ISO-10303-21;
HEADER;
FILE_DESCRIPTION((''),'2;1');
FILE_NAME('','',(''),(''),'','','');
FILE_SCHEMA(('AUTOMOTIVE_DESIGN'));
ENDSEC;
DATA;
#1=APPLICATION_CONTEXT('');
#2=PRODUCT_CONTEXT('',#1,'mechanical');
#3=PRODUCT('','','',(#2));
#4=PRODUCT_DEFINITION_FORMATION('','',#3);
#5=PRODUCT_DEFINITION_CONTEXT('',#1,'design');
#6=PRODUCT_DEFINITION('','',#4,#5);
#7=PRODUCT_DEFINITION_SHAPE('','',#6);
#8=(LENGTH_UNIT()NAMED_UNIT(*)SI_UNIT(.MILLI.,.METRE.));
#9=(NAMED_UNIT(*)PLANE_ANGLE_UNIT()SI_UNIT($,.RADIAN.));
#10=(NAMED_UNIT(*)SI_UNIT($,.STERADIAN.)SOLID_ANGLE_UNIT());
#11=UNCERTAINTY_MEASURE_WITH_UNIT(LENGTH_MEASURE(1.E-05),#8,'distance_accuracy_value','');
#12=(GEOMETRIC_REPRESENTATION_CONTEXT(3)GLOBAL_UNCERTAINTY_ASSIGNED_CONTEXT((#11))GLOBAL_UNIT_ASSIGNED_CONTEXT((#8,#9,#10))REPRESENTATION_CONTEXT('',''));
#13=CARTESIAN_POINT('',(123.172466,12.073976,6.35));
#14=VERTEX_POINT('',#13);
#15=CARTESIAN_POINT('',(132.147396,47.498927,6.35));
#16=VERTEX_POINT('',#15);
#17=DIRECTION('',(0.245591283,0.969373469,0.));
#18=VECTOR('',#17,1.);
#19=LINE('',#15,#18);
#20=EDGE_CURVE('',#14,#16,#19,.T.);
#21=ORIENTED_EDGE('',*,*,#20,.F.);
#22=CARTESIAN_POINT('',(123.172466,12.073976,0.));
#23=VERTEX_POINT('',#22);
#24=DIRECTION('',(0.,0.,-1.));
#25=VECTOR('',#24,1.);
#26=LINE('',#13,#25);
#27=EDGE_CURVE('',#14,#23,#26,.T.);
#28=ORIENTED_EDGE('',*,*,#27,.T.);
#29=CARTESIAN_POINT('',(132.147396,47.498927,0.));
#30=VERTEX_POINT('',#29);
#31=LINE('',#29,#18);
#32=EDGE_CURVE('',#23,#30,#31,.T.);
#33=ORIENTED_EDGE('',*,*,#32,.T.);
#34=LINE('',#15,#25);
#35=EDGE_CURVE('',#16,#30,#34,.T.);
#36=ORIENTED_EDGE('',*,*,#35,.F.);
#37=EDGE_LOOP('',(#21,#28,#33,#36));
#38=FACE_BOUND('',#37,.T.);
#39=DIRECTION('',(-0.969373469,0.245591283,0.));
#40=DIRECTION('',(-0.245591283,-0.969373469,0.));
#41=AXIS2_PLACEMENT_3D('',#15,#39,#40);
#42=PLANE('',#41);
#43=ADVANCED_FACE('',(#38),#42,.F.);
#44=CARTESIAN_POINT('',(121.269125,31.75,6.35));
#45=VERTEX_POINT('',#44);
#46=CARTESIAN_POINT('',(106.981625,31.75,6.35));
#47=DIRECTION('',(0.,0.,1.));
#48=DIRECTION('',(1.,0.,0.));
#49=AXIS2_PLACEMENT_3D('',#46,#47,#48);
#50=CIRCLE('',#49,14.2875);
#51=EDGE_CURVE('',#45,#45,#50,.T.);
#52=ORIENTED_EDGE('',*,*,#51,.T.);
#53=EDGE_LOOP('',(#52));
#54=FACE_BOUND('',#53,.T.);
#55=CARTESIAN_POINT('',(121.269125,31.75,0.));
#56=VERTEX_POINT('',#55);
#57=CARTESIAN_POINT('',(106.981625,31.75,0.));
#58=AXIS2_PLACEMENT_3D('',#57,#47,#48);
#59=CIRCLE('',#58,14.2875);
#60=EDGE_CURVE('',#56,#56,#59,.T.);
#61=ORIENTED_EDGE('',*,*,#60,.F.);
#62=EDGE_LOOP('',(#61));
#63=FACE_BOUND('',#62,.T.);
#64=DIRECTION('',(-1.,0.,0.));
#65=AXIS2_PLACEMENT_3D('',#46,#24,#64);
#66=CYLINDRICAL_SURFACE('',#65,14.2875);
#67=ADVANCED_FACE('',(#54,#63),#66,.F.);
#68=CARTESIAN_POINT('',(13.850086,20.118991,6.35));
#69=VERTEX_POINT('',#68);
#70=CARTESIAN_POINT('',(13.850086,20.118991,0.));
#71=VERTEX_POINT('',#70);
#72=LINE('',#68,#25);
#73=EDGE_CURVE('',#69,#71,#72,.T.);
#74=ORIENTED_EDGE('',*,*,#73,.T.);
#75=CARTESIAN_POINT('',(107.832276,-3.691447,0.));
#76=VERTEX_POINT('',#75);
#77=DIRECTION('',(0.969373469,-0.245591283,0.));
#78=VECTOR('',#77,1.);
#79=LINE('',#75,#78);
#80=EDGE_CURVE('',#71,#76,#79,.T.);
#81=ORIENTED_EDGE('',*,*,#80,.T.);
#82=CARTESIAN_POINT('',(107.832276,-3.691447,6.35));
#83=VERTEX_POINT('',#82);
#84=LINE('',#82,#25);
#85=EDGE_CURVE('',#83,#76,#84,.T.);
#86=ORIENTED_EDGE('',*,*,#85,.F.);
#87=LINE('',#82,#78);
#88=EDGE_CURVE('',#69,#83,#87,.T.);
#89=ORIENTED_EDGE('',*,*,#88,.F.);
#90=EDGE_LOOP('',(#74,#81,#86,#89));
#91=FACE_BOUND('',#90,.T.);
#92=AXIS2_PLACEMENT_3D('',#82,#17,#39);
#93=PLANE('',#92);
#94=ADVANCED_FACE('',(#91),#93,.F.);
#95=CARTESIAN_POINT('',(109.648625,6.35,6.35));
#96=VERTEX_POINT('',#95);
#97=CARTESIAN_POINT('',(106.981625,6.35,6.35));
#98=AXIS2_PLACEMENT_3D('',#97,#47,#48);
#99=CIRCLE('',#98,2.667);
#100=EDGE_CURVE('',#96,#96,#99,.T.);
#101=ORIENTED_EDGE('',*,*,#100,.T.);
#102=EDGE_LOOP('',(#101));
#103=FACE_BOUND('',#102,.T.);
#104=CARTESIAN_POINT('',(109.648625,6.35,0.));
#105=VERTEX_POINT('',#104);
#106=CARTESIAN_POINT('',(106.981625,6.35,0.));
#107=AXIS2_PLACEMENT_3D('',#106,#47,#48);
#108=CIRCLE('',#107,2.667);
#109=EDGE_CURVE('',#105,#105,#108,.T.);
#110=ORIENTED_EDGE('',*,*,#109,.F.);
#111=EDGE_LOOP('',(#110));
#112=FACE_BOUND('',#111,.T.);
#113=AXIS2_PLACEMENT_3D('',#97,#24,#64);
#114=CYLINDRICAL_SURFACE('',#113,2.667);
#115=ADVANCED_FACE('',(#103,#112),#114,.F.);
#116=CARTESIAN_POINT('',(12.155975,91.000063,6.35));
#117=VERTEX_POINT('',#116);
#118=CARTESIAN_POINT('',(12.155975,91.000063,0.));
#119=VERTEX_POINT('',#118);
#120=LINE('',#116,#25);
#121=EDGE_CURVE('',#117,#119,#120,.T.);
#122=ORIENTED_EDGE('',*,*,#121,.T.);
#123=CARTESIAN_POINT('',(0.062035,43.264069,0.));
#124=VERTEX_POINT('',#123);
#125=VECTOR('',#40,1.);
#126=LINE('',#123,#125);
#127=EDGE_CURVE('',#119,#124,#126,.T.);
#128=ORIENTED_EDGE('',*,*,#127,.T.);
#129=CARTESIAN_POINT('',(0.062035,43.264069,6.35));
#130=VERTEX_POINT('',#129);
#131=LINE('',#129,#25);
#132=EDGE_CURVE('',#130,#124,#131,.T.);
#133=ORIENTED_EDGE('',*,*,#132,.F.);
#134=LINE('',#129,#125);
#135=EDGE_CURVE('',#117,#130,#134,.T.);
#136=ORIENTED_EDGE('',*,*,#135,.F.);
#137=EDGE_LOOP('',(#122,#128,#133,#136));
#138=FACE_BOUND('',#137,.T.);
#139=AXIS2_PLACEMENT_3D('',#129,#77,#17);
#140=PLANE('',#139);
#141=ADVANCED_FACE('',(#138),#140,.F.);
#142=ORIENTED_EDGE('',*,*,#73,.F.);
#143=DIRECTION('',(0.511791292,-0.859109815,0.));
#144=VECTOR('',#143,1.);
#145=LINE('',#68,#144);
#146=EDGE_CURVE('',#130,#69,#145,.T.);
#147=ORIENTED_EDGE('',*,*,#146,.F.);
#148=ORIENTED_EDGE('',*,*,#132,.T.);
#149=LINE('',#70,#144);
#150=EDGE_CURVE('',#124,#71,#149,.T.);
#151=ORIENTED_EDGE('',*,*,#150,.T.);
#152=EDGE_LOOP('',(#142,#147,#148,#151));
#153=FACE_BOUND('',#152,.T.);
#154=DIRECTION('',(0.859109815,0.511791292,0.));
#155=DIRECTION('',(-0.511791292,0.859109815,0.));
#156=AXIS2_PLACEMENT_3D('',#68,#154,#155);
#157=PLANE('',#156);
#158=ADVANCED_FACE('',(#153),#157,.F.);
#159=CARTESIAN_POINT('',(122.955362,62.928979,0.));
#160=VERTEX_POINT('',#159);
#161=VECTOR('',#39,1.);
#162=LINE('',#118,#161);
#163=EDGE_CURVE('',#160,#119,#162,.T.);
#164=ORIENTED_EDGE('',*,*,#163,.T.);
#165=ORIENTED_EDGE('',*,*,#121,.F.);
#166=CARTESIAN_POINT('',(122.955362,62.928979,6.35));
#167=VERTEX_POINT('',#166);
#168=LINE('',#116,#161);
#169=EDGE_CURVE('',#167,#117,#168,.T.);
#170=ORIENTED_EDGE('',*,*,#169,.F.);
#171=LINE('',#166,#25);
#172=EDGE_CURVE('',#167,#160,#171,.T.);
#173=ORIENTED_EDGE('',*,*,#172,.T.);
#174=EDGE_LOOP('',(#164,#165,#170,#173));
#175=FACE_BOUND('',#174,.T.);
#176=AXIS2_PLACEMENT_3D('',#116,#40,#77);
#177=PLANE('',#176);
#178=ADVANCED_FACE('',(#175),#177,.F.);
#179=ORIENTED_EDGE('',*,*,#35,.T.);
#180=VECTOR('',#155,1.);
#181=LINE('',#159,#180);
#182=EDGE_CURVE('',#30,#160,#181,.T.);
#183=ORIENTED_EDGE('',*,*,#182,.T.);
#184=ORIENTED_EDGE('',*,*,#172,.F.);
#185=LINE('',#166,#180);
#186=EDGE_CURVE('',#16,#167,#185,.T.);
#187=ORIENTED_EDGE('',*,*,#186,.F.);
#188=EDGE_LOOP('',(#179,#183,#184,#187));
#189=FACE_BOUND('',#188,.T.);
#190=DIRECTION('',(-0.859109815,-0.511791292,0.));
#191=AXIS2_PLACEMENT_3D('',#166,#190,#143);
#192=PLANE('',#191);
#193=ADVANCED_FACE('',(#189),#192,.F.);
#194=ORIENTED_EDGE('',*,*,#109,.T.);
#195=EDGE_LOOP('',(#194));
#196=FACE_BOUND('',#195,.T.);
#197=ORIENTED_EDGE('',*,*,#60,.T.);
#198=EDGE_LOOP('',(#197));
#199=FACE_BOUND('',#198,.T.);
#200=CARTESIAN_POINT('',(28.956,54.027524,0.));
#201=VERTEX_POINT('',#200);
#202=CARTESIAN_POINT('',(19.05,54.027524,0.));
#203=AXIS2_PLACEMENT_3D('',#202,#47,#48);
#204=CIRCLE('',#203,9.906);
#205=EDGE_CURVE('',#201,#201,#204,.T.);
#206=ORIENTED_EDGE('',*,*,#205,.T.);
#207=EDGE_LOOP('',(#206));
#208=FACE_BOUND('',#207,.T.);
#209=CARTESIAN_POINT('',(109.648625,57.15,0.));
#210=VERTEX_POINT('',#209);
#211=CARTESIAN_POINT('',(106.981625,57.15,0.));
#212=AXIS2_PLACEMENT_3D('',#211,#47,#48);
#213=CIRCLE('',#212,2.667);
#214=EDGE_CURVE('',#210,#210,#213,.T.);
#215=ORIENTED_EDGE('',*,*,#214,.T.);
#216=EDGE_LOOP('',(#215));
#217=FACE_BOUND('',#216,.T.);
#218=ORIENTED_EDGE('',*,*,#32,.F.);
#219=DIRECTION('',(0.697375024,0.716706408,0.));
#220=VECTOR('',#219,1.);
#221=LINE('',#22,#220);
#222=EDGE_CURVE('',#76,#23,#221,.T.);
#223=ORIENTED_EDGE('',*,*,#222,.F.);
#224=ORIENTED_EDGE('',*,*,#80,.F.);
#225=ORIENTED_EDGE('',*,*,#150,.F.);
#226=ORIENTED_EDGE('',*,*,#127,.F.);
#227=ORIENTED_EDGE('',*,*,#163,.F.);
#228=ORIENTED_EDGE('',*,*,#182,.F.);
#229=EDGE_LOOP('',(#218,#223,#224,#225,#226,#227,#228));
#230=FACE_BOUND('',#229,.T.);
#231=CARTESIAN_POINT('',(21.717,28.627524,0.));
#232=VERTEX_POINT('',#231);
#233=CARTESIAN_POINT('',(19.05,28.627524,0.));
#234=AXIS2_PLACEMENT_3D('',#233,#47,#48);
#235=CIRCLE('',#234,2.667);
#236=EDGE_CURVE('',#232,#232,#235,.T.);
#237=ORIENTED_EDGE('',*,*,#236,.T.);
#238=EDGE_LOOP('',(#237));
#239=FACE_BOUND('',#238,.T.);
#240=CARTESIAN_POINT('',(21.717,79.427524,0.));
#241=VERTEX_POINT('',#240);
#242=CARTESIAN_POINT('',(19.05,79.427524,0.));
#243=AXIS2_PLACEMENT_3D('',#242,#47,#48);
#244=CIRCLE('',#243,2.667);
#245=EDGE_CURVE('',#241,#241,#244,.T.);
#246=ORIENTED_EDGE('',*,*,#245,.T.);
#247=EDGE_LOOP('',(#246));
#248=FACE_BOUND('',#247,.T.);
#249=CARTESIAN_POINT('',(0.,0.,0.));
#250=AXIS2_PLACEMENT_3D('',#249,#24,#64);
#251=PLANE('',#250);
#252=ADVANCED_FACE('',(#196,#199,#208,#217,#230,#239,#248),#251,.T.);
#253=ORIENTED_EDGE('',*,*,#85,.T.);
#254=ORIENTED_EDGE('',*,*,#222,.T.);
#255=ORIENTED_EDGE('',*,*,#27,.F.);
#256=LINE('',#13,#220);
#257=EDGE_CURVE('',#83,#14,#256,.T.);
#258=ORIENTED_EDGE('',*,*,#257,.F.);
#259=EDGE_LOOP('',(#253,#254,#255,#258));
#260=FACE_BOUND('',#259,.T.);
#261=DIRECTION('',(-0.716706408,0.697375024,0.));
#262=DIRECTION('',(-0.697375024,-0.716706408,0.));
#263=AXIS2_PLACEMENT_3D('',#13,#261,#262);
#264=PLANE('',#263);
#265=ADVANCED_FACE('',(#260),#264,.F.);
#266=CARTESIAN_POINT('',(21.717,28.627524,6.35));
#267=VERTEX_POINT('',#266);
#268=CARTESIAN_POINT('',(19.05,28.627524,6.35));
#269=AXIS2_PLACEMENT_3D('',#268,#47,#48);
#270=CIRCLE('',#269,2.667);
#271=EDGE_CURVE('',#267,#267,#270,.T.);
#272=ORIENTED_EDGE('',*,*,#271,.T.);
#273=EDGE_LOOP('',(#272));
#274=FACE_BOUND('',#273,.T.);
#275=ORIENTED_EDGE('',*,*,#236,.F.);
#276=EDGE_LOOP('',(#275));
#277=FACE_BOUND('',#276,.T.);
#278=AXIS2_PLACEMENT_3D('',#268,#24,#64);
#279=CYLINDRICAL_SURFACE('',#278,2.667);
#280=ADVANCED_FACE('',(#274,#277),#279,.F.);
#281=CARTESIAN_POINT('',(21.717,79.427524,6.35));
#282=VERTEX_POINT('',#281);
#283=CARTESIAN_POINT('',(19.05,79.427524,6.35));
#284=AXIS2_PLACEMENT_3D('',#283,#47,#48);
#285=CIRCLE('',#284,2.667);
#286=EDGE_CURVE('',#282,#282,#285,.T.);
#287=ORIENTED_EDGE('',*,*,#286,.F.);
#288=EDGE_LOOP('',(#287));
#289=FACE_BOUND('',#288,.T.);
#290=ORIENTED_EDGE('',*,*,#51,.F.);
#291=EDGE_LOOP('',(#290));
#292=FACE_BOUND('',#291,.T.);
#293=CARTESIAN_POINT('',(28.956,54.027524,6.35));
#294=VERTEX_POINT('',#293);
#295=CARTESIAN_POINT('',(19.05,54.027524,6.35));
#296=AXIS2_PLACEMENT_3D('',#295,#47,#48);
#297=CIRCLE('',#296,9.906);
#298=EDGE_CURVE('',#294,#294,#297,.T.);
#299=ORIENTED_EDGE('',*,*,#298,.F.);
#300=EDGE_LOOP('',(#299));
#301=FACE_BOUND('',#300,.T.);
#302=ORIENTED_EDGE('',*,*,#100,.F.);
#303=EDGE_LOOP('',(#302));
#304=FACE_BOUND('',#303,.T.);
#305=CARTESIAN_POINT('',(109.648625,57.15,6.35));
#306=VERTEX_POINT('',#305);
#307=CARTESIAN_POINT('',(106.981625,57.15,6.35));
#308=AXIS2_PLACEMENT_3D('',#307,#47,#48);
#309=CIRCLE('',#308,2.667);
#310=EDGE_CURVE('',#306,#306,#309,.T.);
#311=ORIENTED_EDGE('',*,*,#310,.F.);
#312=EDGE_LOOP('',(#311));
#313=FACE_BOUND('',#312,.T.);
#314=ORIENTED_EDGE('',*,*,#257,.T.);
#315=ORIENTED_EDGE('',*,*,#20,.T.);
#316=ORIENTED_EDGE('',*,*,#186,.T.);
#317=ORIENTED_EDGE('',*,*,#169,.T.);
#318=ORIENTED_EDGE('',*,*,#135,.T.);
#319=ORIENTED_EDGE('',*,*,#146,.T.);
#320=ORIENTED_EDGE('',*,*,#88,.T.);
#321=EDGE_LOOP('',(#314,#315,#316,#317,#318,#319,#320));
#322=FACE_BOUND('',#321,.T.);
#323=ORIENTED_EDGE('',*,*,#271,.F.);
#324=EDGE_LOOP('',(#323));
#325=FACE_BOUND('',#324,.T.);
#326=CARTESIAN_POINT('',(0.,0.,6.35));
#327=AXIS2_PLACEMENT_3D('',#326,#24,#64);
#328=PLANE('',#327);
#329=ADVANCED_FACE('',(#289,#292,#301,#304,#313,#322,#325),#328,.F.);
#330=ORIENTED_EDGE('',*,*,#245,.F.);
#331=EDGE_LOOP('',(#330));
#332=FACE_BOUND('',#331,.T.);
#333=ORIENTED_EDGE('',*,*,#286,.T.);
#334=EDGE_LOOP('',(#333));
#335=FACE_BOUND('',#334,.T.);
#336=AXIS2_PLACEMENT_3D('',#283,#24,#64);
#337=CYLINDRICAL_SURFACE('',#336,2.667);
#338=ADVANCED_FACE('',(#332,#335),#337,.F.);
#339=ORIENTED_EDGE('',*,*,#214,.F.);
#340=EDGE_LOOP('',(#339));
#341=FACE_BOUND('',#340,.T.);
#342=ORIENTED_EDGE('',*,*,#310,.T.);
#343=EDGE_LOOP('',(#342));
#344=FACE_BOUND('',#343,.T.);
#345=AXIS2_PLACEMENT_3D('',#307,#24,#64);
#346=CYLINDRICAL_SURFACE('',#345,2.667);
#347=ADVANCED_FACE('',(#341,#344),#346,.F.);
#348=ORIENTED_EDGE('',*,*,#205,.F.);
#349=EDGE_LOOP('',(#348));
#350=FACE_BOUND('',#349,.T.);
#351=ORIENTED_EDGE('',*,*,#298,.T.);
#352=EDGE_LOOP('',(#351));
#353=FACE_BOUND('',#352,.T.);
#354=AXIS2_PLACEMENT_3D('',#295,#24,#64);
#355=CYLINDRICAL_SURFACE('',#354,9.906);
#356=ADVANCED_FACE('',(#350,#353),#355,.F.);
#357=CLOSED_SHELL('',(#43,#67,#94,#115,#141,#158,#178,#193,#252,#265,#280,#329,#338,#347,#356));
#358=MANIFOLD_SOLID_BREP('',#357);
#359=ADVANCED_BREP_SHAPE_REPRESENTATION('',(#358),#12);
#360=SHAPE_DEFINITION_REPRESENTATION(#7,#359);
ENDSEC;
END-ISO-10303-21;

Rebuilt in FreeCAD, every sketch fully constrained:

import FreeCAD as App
import Part
import Sketcher

V = App.Vector
Q = App.Units.Quantity


def add_polygon(sketch, points):
    """Adds a closed chain of lines whose ends are joined by coincident constraints."""
    first, n = sketch.GeometryCount, len(points)
    for a, b in zip(points, points[1:] + points[:1]):
        sketch.addGeometry(Part.LineSegment(App.Vector(*a, 0), App.Vector(*b, 0)), False)
    for i in range(n):
        sketch.addConstraint(Sketcher.Constraint("Coincident", first + i, 2, first + (i + 1) % n, 1))

doc = App.newDocument("Part")
params = doc.addObject("Spreadsheet::Sheet", "Params")
for row, (alias, value) in enumerate([
    ("sketch1_diameter", "0.21 in"),
    ("sketch1_diameter2", "0.78 in"),
    ("sketch1_diameter3", "1.125 in"),
    ("sketch1_length", "4.5 in"),
    ("pad1_length", "0.25 in"),
], start=1):
    params.set(f"A{row}", alias)
    params.set(f"B{row}", "=" + value)
    params.setAlias(f"B{row}", alias)

body = doc.addObject("PartDesign::Body", "Body")

# Sketch on XY plane
sketch1 = body.newObject("Sketcher::SketchObject", "Sketch")
sketch1.AttachmentSupport = (doc.getObject("XY_Plane"), [""])
sketch1.MapMode = "FlatFace"
add_polygon(sketch1, [(123, 62.9), (12.2, 91), (0.1, 43.3), (13.9, 20.1), (107.8, -3.7), (123.2, 12.1), (132.1, 47.5)])  # lines 0-6
sketch1.addGeometry(Part.Circle(V(107, 6.3, 0), V(0, 0, 1), 2.7), False)  # 7
sketch1.addGeometry(Part.Circle(V(107, 31.8, 0), V(0, 0, 1), 14.3), False)  # 8
sketch1.addGeometry(Part.Circle(V(19.1, 28.6, 0), V(0, 0, 1), 2.7), False)  # 9
sketch1.addGeometry(Part.Circle(V(107, 57.1, 0), V(0, 0, 1), 2.7), False)  # 10
sketch1.addGeometry(Part.Circle(V(19.1, 54, 0), V(0, 0, 1), 9.9), False)  # 11
sketch1.addGeometry(Part.Circle(V(19.1, 79.4, 0), V(0, 0, 1), 2.7), False)  # 12
sketch1.addConstraint([
    Sketcher.Constraint("Equal", 7, 9),
    Sketcher.Constraint("Equal", 9, 10),
    Sketcher.Constraint("Equal", 10, 12),
    Sketcher.Constraint("Perpendicular", 0, 1),
    Sketcher.Constraint("Perpendicular", 1, 3),
    Sketcher.Constraint("Perpendicular", 3, 5),
    Sketcher.Constraint("Parallel", 2, 6),
    Sketcher.Constraint("Vertical", 7, 3, 8, 3),
    Sketcher.Constraint("Vertical", 8, 3, 10, 3),
    Sketcher.Constraint("Vertical", 9, 3, 11, 3),
    Sketcher.Constraint("Vertical", 11, 3, 12, 3),
    Sketcher.Constraint("Diameter", 7, Q("0.21 in")),
    Sketcher.Constraint("Diameter", 11, Q("0.78 in")),
    Sketcher.Constraint("Diameter", 8, Q("1.125 in")),
    Sketcher.Constraint("DistanceY", 7, 3, 8, 3, Q("1 in")),
    Sketcher.Constraint("DistanceY", 8, 3, 10, 3, Q("1 in")),
    Sketcher.Constraint("DistanceY", 9, 3, 11, 3, Q("1 in")),
    Sketcher.Constraint("DistanceY", 11, 3, 12, 3, Q("1 in")),
    Sketcher.Constraint("Distance", 0, Q("4.5 in")),
    Sketcher.Constraint("DistanceY", -1, 1, 7, 3, Q("0.25 in")),
    Sketcher.Constraint("DistanceX", -1, 1, 9, 3, Q("0.75 in")),
    Sketcher.Constraint("Distance", 2, Q("26.940768 mm")),
    Sketcher.Constraint("DistanceY", -1, 1, 1, 2, Q("43.264069 mm")),
    Sketcher.Constraint("DistanceY", -1, 1, 2, 2, Q("20.118991 mm")),
    Sketcher.Constraint("DistanceY", -1, 1, 6, 2, Q("62.928979 mm")),
    Sketcher.Constraint("DistanceY", 12, 3, 0, 2, Q("11.572539 mm")),
    Sketcher.Constraint("DistanceX", 0, 2, 10, 3, Q("94.82565 mm")),
    Sketcher.Constraint("DistanceX", 1, 2, 0, 2, Q("12.093939 mm")),
    Sketcher.Constraint("DistanceX", 7, 3, 3, 2, Q("0.850651 mm")),
    Sketcher.Constraint("DistanceX", 7, 3, 4, 2, Q("16.190841 mm")),
    Sketcher.Constraint("DistanceX", 10, 3, 5, 2, Q("25.165771 mm")),
    Sketcher.Constraint("DistanceX", -1, 1, 7, 3, Q("106.981625 mm")),
])
sketch1.setExpression("Constraints[18]", "Params.sketch1_diameter")
sketch1.setExpression("Constraints[19]", "Params.sketch1_diameter2")
sketch1.setExpression("Constraints[20]", "Params.sketch1_diameter3")
sketch1.setExpression("Constraints[25]", "Params.sketch1_length")
pad1 = body.newObject("PartDesign::Pad", "Pad")
pad1.Profile = sketch1
pad1.setExpression("Length", "Params.pad1_length")

doc.recompute()
